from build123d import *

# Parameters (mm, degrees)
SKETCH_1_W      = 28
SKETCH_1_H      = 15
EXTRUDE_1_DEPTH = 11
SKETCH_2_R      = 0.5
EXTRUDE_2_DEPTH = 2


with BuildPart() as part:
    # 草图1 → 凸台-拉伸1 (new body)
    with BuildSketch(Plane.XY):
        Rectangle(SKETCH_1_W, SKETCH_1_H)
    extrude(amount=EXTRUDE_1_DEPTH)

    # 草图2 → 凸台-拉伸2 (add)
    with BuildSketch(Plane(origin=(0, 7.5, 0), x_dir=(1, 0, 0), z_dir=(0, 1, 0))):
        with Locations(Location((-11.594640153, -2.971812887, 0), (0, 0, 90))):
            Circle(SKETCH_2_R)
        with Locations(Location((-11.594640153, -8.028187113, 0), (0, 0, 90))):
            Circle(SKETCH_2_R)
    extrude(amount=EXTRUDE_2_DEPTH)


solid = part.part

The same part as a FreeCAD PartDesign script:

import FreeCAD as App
import Part
import Sketcher

doc = App.newDocument("Part")
body = doc.addObject("PartDesign::Body", "Body")

# Sketch on XY plane
sketch1 = body.newObject("Sketcher::SketchObject", "Sketch")
sketch1.AttachmentSupport = (doc.getObject("XY_Plane"), [""])
sketch1.MapMode = "FlatFace"
sketch1.addGeometry(Part.LineSegment(App.Vector(-14, 8, 0), App.Vector(-14, -8, 0)), False)
sketch1.addGeometry(Part.LineSegment(App.Vector(-14, -8, 0), App.Vector(14, -8, 0)), False)
sketch1.addGeometry(Part.LineSegment(App.Vector(14, -8, 0), App.Vector(14, 8, 0)), False)
sketch1.addGeometry(Part.LineSegment(App.Vector(14, 8, 0), App.Vector(-14, 8, 0)), False)
sketch1.addConstraint(Sketcher.Constraint("Coincident", 0, 2, 1, 1))
sketch1.addConstraint(Sketcher.Constraint("Coincident", 1, 2, 2, 1))
sketch1.addConstraint(Sketcher.Constraint("Coincident", 2, 2, 3, 1))
sketch1.addConstraint(Sketcher.Constraint("Coincident", 3, 2, 0, 1))
sketch1.addConstraint(Sketcher.Constraint("Vertical", 0))
sketch1.addConstraint(Sketcher.Constraint("Horizontal", 1))
sketch1.addConstraint(Sketcher.Constraint("Vertical", 2))
sketch1.addConstraint(Sketcher.Constraint("Horizontal", 3))
sketch1.addConstraint(Sketcher.Constraint("Symmetric", 0, 2, 2, 2, -1, 1))
sketch1.addConstraint(Sketcher.Constraint("DistanceX", 1, 1, 1, 2, 28.0))
sketch1.addConstraint(Sketcher.Constraint("DistanceY", 0, 2, 0, 1, 15.0))
pad1 = body.newObject("PartDesign::Pad", "Pad")
pad1.Profile = sketch1
pad1.Length = 11

# Sketch on XZ plane
sketch2 = body.newObject("Sketcher::SketchObject", "Sketch001")
sketch2.AttachmentSupport = (doc.getObject("XZ_Plane"), [""])
sketch2.MapMode = "FlatFace"
sketch2.AttachmentOffset = App.Placement(App.Vector(0, 0, -7.5), App.Rotation())
sketch2.addGeometry(Part.Circle(App.Vector(-11.6, 3, 0), App.Vector(0, 0, 1), 0.5), False)
sketch2.addGeometry(Part.Circle(App.Vector(-11.6, 8, 0), App.Vector(0, 0, 1), 0.5), False)
sketch2.addConstraint(Sketcher.Constraint("Equal", 0, 1))
sketch2.addConstraint(Sketcher.Constraint("Vertical", 0, 3, 1, 3))
sketch2.addConstraint(Sketcher.Constraint("Diameter", 0, 1.0))
sketch2.addConstraint(Sketcher.Constraint("DistanceX", 0, 3, -1, 1, 11.59464))
sketch2.addConstraint(Sketcher.Constraint("DistanceY", -1, 1, 0, 3, 2.971813))
sketch2.addConstraint(Sketcher.Constraint("DistanceY", -1, 1, 1, 3, 8.028187))
pad2 = body.newObject("PartDesign::Pad", "Pad001")
pad2.Profile = sketch2
pad2.Length = 2
pad2.Reversed = True

doc.recompute()
